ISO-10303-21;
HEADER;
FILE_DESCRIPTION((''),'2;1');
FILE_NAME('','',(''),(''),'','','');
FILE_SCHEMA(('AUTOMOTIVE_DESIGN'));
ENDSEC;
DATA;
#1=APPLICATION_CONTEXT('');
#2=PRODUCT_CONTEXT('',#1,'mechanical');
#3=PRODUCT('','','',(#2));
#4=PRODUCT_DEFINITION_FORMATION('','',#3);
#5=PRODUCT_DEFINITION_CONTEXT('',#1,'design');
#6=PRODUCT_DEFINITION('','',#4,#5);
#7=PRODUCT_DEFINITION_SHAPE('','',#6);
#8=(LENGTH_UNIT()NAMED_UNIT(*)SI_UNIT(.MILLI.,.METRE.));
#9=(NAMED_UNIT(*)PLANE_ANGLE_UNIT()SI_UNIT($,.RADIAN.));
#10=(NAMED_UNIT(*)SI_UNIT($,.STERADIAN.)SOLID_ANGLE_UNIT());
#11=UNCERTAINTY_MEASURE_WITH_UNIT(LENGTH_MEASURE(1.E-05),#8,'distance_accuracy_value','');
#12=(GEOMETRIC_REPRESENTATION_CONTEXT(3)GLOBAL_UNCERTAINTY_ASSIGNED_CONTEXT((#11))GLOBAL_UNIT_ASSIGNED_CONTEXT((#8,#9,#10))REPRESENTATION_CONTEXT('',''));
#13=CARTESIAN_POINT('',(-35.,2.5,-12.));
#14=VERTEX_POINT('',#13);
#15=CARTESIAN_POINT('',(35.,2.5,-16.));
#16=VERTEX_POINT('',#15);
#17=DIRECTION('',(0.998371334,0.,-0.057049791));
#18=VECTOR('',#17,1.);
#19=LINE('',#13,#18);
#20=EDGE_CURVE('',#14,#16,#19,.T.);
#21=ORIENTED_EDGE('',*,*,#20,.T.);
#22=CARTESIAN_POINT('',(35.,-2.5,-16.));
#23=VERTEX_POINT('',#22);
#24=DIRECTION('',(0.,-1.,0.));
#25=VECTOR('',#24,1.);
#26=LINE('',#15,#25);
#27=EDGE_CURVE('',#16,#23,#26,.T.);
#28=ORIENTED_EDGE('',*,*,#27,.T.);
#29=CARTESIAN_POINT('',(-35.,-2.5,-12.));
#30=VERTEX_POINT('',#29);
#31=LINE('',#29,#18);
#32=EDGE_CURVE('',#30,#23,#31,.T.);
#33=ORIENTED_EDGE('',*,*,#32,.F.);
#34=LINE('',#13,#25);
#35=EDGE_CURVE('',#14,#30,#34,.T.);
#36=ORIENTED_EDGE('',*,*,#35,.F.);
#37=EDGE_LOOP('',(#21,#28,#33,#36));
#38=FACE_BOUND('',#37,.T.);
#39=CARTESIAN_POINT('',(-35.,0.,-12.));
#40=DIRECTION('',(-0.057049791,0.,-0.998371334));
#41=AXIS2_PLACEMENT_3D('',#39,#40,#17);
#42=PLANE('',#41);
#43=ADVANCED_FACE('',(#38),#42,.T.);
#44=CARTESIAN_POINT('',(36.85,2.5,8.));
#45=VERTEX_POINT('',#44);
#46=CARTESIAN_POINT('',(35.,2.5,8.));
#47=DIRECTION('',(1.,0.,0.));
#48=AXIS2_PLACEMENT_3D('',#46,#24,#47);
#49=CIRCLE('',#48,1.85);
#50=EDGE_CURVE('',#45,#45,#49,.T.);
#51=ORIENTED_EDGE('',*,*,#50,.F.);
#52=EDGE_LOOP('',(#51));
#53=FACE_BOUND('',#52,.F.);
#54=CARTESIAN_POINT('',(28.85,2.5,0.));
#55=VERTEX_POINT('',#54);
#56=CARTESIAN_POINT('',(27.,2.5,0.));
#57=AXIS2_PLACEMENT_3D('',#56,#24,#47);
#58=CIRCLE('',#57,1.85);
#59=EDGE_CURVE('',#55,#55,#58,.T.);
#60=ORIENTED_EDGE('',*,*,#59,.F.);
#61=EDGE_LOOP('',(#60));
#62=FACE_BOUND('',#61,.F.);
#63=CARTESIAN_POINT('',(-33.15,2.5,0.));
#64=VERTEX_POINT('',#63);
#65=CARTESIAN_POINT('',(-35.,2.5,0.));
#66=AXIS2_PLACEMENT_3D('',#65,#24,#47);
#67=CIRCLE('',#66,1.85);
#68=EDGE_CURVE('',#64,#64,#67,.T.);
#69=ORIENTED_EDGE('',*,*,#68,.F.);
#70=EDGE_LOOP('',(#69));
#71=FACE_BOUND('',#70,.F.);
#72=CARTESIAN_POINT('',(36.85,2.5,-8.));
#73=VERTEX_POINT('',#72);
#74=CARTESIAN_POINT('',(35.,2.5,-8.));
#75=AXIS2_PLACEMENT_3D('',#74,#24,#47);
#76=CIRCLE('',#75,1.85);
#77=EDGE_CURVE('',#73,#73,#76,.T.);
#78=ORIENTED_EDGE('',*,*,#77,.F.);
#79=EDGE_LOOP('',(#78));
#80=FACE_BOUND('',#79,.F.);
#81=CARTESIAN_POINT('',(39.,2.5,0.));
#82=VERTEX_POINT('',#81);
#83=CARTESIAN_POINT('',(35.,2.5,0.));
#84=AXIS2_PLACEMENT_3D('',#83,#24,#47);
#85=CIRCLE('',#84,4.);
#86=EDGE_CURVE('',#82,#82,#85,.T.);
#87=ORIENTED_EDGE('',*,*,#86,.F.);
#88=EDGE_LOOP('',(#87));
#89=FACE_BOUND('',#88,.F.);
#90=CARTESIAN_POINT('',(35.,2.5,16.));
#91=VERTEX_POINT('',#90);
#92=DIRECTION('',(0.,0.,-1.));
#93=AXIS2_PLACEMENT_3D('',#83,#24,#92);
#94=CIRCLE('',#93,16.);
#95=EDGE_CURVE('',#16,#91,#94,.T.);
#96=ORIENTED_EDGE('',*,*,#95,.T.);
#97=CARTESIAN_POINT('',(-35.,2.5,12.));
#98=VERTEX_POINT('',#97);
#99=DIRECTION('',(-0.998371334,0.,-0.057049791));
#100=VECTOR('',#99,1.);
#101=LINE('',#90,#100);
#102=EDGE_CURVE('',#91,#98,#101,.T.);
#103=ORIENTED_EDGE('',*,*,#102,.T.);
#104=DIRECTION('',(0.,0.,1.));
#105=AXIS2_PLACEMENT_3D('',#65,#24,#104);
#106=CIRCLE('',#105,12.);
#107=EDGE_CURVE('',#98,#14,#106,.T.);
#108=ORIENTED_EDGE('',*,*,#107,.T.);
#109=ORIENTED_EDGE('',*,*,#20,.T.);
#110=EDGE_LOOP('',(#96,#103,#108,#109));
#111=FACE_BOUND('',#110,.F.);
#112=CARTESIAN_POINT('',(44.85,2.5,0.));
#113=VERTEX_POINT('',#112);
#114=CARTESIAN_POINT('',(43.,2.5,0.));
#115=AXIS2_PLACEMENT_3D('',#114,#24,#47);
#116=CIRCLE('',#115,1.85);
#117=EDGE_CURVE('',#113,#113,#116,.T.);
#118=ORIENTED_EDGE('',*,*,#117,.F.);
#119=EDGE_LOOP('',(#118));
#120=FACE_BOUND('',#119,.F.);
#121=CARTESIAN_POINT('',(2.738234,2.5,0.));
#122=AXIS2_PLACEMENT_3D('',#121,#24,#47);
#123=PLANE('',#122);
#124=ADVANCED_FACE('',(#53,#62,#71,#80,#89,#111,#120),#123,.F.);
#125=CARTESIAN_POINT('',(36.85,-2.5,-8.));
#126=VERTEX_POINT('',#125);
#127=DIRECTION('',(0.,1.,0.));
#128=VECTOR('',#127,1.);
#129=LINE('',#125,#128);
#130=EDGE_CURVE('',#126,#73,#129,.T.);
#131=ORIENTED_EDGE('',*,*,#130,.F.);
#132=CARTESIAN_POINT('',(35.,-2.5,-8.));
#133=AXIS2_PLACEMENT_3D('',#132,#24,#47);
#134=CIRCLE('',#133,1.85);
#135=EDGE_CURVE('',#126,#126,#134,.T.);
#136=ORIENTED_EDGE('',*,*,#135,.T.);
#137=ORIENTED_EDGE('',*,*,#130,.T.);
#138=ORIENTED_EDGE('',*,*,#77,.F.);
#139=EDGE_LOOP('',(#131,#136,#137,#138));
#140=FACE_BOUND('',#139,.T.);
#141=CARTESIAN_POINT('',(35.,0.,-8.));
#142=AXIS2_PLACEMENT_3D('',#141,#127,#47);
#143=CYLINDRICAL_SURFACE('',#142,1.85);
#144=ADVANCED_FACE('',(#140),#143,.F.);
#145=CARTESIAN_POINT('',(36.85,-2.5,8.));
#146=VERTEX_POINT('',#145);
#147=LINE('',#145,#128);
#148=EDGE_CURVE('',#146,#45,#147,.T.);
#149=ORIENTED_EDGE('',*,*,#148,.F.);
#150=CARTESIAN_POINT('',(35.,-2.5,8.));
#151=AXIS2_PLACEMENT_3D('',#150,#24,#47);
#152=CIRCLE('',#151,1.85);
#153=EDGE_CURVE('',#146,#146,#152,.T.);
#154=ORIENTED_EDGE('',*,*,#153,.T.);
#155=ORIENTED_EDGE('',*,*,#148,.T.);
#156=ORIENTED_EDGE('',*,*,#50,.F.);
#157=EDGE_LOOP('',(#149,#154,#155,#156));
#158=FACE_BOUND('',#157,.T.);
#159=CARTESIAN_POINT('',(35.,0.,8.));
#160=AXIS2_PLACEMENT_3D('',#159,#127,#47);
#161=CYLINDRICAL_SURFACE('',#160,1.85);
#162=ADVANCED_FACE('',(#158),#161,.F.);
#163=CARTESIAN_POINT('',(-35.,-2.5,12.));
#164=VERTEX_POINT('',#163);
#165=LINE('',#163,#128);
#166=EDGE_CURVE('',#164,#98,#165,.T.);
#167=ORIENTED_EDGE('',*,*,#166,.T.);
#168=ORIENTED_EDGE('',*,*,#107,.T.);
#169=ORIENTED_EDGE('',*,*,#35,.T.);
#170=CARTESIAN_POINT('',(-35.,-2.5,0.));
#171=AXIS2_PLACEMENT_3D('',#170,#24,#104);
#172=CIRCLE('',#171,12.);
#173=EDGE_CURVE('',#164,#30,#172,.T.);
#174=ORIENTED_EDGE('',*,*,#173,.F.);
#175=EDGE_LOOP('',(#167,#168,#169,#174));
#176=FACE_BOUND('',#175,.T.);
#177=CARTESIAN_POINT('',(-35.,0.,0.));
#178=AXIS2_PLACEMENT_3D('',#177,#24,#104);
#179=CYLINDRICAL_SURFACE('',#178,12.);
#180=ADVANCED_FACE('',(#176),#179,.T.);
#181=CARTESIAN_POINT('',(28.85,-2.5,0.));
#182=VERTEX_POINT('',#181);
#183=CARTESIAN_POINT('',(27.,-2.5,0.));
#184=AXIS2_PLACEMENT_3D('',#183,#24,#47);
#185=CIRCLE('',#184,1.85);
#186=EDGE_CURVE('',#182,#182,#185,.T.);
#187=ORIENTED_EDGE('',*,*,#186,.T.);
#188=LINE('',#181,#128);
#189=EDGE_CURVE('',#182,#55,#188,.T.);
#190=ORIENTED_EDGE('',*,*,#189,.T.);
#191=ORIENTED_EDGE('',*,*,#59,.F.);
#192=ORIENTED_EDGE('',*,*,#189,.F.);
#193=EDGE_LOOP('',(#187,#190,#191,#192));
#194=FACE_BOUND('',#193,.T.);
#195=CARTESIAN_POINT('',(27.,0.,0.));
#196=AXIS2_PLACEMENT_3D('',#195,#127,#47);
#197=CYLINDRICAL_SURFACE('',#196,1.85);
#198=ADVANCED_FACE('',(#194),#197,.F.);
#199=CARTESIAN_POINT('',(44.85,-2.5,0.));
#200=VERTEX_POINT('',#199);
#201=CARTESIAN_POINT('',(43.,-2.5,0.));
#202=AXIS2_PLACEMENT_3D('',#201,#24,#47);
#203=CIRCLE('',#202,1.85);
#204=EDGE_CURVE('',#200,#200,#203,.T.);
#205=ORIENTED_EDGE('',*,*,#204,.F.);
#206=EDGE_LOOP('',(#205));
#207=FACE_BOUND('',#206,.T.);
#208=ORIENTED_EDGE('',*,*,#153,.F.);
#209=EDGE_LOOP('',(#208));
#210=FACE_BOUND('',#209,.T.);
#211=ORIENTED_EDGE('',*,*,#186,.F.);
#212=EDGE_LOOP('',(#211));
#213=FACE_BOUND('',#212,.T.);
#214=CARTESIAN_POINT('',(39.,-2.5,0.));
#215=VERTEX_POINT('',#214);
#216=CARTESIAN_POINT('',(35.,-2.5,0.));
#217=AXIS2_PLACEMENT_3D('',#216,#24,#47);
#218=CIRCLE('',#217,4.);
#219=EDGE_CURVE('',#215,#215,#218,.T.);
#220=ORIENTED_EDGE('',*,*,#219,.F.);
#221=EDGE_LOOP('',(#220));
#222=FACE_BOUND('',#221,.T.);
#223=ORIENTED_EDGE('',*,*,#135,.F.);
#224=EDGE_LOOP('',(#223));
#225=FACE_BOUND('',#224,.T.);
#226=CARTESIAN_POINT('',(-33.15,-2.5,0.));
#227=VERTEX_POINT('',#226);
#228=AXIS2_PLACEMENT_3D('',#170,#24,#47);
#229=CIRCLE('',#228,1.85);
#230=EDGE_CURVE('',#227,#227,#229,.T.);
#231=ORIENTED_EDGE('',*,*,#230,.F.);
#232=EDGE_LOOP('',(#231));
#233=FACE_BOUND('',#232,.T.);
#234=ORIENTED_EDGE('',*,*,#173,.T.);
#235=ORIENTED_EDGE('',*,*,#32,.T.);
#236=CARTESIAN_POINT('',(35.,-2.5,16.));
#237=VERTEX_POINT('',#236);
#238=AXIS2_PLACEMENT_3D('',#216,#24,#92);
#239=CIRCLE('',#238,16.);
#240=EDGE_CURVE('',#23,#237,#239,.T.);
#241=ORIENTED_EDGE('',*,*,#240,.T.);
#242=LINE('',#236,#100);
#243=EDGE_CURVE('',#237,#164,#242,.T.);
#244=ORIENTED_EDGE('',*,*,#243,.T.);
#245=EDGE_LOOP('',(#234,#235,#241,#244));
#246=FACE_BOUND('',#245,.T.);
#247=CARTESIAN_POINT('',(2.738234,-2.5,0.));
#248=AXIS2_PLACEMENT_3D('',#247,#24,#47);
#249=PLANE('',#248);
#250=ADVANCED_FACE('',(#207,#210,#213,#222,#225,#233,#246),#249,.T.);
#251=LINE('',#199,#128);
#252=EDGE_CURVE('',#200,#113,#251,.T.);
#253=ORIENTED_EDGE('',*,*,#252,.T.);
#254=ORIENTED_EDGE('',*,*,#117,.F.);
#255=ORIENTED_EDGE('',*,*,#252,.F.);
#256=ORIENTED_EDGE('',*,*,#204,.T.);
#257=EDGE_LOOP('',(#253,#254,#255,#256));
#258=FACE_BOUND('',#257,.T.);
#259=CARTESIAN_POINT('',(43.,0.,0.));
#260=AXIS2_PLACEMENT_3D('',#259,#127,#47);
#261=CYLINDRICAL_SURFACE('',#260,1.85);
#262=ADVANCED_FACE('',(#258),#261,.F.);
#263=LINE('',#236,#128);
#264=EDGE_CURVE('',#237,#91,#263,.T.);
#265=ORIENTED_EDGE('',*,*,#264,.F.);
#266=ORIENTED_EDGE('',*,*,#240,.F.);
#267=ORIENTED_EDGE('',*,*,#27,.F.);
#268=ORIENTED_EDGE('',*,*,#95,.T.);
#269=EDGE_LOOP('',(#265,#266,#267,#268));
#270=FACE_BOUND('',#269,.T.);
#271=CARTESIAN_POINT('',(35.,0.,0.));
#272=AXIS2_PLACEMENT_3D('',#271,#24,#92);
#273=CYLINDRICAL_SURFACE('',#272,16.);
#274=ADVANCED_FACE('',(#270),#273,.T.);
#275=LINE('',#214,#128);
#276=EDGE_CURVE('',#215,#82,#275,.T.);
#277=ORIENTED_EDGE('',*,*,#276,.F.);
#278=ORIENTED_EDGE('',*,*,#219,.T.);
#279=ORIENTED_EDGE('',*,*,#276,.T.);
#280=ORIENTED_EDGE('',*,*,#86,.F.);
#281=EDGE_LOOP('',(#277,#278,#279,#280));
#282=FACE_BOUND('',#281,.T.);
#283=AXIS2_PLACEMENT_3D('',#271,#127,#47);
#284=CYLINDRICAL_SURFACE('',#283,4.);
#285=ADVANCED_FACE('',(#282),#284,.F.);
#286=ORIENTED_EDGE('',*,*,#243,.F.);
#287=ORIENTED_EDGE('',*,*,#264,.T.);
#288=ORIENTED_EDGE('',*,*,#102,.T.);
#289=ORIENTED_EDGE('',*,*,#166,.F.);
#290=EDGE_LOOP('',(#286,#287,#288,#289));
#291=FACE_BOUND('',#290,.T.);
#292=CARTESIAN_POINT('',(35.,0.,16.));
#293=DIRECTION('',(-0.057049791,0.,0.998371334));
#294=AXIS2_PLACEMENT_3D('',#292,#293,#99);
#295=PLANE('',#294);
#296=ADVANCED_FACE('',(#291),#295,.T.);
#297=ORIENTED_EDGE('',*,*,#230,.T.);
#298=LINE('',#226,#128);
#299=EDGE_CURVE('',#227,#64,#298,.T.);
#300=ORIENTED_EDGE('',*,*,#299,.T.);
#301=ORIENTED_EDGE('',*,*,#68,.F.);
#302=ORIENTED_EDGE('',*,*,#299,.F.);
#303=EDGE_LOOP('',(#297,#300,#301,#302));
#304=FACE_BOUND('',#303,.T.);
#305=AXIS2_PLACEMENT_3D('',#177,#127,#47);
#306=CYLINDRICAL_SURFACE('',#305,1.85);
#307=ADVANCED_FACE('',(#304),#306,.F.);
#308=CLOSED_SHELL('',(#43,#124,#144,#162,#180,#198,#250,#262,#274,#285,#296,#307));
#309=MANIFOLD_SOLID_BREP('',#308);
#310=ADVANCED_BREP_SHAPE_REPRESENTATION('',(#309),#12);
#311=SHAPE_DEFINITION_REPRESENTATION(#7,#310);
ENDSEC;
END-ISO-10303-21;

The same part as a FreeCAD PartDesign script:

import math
import FreeCAD as App
import Part
import Sketcher

doc = App.newDocument("Part")
params = doc.addObject("Spreadsheet::Sheet", "Params")
for row, (alias, value) in enumerate([
    ("sketch1_diameter", "8 mm"),
    ("sketch1_radius", "12 mm"),
    ("sketch1_radius2", "16 mm"),
    ("sketch1_diameter2", "3.7 mm"),
    ("pad1_length", "5 mm"),
], start=1):
    params.set(f"A{row}", alias)
    params.set(f"B{row}", "=" + value)
    params.setAlias(f"B{row}", alias)

body = doc.addObject("PartDesign::Body", "Body")

# Sketch on XZ plane
sketch1 = body.newObject("Sketcher::SketchObject", "Sketch")
sketch1.AttachmentSupport = (doc.getObject("XZ_Plane"), [""])
sketch1.MapMode = "FlatFace"
sketch1.addGeometry([
    Part.ArcOfCircle(Part.Circle(App.Vector(-35, 0, 0), App.Vector(0, 0, 1), 12), math.radians(90), math.radians(270)),  # 0
    Part.LineSegment(App.Vector(-35, -12, 0), App.Vector(35, -16, 0)),  # 1
    Part.ArcOfCircle(Part.Circle(App.Vector(35, 0, 0), App.Vector(0, 0, 1), 16), math.radians(-90), math.radians(90)),  # 2
    Part.LineSegment(App.Vector(35, 16, 0), App.Vector(-35, 12, 0)),  # 3
    Part.Circle(App.Vector(35, -8, 0), App.Vector(0, 0, 1), 1.85),  # 4
    Part.Circle(App.Vector(-35, 0, 0), App.Vector(0, 0, 1), 1.85),  # 5
    Part.Circle(App.Vector(27, 0, 0), App.Vector(0, 0, 1), 1.85),  # 6
    Part.Circle(App.Vector(35, 0, 0), App.Vector(0, 0, 1), 4),  # 7
    Part.Circle(App.Vector(43, 0, 0), App.Vector(0, 0, 1), 1.85),  # 8
    Part.Circle(App.Vector(35, 8, 0), App.Vector(0, 0, 1), 1.85),  # 9
], False)
sketch1.addConstraint([
    Sketcher.Constraint("Coincident", 0, 2, 1, 1),
    Sketcher.Constraint("Coincident", 1, 2, 2, 1),
    Sketcher.Constraint("Coincident", 2, 2, 3, 1),
    Sketcher.Constraint("Coincident", 3, 2, 0, 1),
    Sketcher.Constraint("Coincident", 5, 3, 0, 3),
    Sketcher.Constraint("Coincident", 7, 3, 2, 3),
    Sketcher.Constraint("Equal", 4, 5),
    Sketcher.Constraint("Equal", 5, 6),
    Sketcher.Constraint("Equal", 6, 8),
    Sketcher.Constraint("Equal", 8, 9),
    Sketcher.Constraint("Symmetric", 0, 3, 2, 3, -1, 1),
    Sketcher.Constraint("Symmetric", 4, 3, 9, 3, -1),
    Sketcher.Constraint("Symmetric", 1, 2, 2, 2, -1),
    Sketcher.Constraint("PointOnObject", 6, 3, -1),
    Sketcher.Constraint("PointOnObject", 8, 3, -1),
    Sketcher.Constraint("Vertical", 2, 3, 4, 3),
    Sketcher.Constraint("Vertical", 5, 3, 0, 2),
    Sketcher.Constraint("Vertical", 9, 3, 1, 2),
    Sketcher.Constraint("Vertical", 0, 2, 3, 2),
    Sketcher.Constraint("Diameter", 7, 8.0),
    Sketcher.Constraint("Radius", 0, 12.0),
    Sketcher.Constraint("Radius", 2, 16.0),
    Sketcher.Constraint("Diameter", 4, 3.7),
    Sketcher.Constraint("DistanceX", 0, 3, -1, 1, 35.0),
    Sketcher.Constraint("DistanceY", 4, 3, -1, 1, 8.0),
    Sketcher.Constraint("DistanceX", -1, 1, 6, 3, 27.0),
    Sketcher.Constraint("DistanceX", -1, 1, 8, 3, 43.0),
])
sketch1.setExpression("Constraints[19]", "Params.sketch1_diameter")
sketch1.setExpression("Constraints[20]", "Params.sketch1_radius")
sketch1.setExpression("Constraints[21]", "Params.sketch1_radius2")
sketch1.setExpression("Constraints[22]", "Params.sketch1_diameter2")
pad1 = body.newObject("PartDesign::Pad", "Pad")
pad1.Profile = sketch1
pad1.setExpression("Length", "Params.pad1_length")
pad1.Midplane = True

doc.recompute()
